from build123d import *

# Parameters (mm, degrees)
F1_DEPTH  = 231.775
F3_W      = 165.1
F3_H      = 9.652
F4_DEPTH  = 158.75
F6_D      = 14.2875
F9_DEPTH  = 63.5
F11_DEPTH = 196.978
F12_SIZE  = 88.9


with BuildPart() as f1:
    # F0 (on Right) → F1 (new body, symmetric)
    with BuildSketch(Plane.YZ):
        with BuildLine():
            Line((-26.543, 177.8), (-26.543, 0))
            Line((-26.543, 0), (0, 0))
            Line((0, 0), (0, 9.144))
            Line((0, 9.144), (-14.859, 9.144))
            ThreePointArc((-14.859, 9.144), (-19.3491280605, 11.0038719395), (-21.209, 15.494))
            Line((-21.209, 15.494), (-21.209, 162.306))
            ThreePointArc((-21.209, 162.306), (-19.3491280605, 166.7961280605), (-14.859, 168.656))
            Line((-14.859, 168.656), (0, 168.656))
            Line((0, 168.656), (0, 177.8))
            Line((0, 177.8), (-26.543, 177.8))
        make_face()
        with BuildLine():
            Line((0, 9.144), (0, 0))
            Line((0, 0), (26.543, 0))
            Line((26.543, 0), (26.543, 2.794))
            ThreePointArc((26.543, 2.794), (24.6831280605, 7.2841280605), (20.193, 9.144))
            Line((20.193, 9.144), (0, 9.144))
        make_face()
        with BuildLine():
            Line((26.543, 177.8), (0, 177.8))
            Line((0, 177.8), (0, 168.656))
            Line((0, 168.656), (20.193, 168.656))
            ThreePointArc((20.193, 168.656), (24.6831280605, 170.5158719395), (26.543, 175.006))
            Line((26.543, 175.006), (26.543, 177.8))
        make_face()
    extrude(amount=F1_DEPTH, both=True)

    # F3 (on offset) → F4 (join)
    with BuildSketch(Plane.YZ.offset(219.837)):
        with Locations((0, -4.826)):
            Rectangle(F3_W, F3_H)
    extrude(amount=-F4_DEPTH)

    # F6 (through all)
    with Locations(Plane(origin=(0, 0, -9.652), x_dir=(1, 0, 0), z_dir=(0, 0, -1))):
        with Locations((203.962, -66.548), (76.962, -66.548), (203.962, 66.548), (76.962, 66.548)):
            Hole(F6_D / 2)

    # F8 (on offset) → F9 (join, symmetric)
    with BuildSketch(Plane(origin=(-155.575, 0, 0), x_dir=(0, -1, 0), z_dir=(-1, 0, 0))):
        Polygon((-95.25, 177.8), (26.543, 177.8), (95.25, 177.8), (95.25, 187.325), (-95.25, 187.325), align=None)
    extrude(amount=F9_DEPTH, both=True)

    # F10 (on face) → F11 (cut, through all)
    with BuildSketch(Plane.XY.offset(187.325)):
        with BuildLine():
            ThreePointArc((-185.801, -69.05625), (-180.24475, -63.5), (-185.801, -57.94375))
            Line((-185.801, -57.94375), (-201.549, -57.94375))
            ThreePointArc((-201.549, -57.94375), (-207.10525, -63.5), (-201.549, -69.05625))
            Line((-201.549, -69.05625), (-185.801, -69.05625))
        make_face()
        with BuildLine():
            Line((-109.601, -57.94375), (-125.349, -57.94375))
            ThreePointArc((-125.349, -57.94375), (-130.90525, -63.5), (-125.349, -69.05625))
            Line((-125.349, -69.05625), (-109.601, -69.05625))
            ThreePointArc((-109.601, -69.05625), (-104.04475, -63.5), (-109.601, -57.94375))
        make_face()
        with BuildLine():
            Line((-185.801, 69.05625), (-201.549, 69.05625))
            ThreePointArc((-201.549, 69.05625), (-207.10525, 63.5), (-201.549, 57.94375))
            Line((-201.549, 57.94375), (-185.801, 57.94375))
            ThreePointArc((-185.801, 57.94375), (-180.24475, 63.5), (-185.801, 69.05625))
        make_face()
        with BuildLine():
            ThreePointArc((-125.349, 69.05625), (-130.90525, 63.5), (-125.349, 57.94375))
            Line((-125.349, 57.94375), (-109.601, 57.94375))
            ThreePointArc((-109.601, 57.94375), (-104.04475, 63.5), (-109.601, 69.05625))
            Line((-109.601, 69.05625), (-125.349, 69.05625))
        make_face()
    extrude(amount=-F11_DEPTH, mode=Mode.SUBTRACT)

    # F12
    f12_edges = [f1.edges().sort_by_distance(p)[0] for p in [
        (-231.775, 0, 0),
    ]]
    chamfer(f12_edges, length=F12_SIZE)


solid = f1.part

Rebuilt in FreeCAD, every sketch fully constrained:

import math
import FreeCAD as App
import Part
import Sketcher

V = App.Vector
Q = App.Units.Quantity


def edges_at(feature, points):
    """Names of the edges that pass closest to the given points."""
    edges = feature.Shape.Edges
    near = lambda p: min(range(len(edges)), key=lambda i: edges[i].distToShape(Part.Vertex(*p))[0])
    return sorted({f"Edge{near(p) + 1}" for p in points})


def add_polygon(sketch, points):
    """Adds a closed chain of lines whose ends are joined by coincident constraints."""
    first, n = sketch.GeometryCount, len(points)
    for a, b in zip(points, points[1:] + points[:1]):
        sketch.addGeometry(Part.LineSegment(App.Vector(*a, 0), App.Vector(*b, 0)), False)
    for i in range(n):
        sketch.addConstraint(Sketcher.Constraint("Coincident", first + i, 2, first + (i + 1) % n, 1))

doc = App.newDocument("Part")
body = doc.addObject("PartDesign::Body", "Body")

# Sketch on YZ plane
sketch1 = body.newObject("Sketcher::SketchObject", "Sketch")
sketch1.AttachmentSupport = (doc.getObject("YZ_Plane"), [""])
sketch1.MapMode = "FlatFace"
sketch1.addGeometry([
    Part.LineSegment(V(-26.5, 177.8, 0), V(-26.5, 0, 0)),  # 0
    Part.LineSegment(V(-26.5, 0, 0), V(26.5, 0, 0)),  # 1
    Part.LineSegment(V(26.5, 0, 0), V(26.5, 2.8, 0)),  # 2
    Part.ArcOfCircle(Part.Circle(V(20.2, 2.8, 0), V(0, 0, 1), 6.3), math.radians(0), math.radians(90)),  # 3
    Part.LineSegment(V(20.2, 9.1, 0), V(-14.9, 9.1, 0)),  # 4
    Part.ArcOfCircle(Part.Circle(V(-14.9, 15.5, 0), V(0, 0, 1), 6.3), math.radians(180), math.radians(270)),  # 5
    Part.LineSegment(V(-21.2, 15.5, 0), V(-21.2, 162.3, 0)),  # 6
    Part.ArcOfCircle(Part.Circle(V(-14.9, 162.3, 0), V(0, 0, 1), 6.3), math.radians(90), math.radians(180)),  # 7
    Part.LineSegment(V(-14.9, 168.7, 0), V(20.2, 168.7, 0)),  # 8
    Part.ArcOfCircle(Part.Circle(V(20.2, 175, 0), V(0, 0, 1), 6.3), math.radians(-90), math.radians(0)),  # 9
    Part.LineSegment(V(26.5, 175, 0), V(26.5, 177.8, 0)),  # 10
    Part.LineSegment(V(26.5, 177.8, 0), V(-26.5, 177.8, 0)),  # 11
], False)
sketch1.addConstraint([
    Sketcher.Constraint("Coincident", 0, 2, 1, 1),
    Sketcher.Constraint("Coincident", 1, 2, 2, 1),
    Sketcher.Constraint("Tangent", 2, 2, 3, 1),
    Sketcher.Constraint("Tangent", 3, 2, 4, 1),
    Sketcher.Constraint("Tangent", 4, 2, 5, 2),
    Sketcher.Constraint("Tangent", 5, 1, 6, 1),
    Sketcher.Constraint("Tangent", 6, 2, 7, 2),
    Sketcher.Constraint("Tangent", 7, 1, 8, 1),
    Sketcher.Constraint("Tangent", 8, 2, 9, 1),
    Sketcher.Constraint("Tangent", 9, 2, 10, 1),
    Sketcher.Constraint("Coincident", 10, 2, 11, 1),
    Sketcher.Constraint("Coincident", 11, 2, 0, 1),
    Sketcher.Constraint("Vertical", 0),
    Sketcher.Constraint("Horizontal", 1),
    Sketcher.Constraint("Vertical", 2),
    Sketcher.Constraint("Horizontal", 4),
    Sketcher.Constraint("Vertical", 6),
    Sketcher.Constraint("Horizontal", 8),
    Sketcher.Constraint("Vertical", 10),
    Sketcher.Constraint("Horizontal", 11),
    Sketcher.Constraint("Equal", 3, 5),
    Sketcher.Constraint("Equal", 5, 7),
    Sketcher.Constraint("Equal", 7, 9),
    Sketcher.Constraint("Symmetric", 0, 2, 1, 2, -1, 1),
    Sketcher.Constraint("Vertical", 3, 3, 9, 3),
    Sketcher.Constraint("Equal", 2, 10),
    Sketcher.Constraint("DistanceY", 0, 2, 0, 1, Q("7 in")),
    Sketcher.Constraint("Radius", 3, Q("0.25 in")),
    Sketcher.Constraint("DistanceX", 1, 1, 1, 2, Q("2.09 in")),
    Sketcher.Constraint("DistanceX", 4, 2, 4, 1, Q("1.38 in")),
    Sketcher.Constraint("DistanceY", 2, 1, 2, 2, Q("0.11 in")),
])
pad1 = body.newObject("PartDesign::Pad", "Pad")
pad1.Profile = sketch1
pad1.Length = Q("18.25 in")
pad1.Midplane = True

# Sketch on YZ plane
sketch2 = body.newObject("Sketcher::SketchObject", "Sketch001")
sketch2.AttachmentSupport = (doc.getObject("YZ_Plane"), [""])
sketch2.MapMode = "FlatFace"
sketch2.AttachmentOffset = App.Placement(V(0, 0, 8.655 * 25.4), App.Rotation())
add_polygon(sketch2, [(-83, 0), (-83, -10), (83, -10), (83, 0)])  # lines 0-3
sketch2.addConstraint([
    Sketcher.Constraint("Vertical", 0),
    Sketcher.Constraint("Horizontal", 1),
    Sketcher.Constraint("Vertical", 2),
    Sketcher.Constraint("Horizontal", 3),
    Sketcher.Constraint("Symmetric", 2, 2, 3, 2, -1, 1),
    Sketcher.Constraint("DistanceX", 1, 1, 1, 2, Q("6.5 in")),
    Sketcher.Constraint("DistanceY", 0, 2, 0, 1, Q("0.38 in")),
])
pad2 = body.newObject("PartDesign::Pad", "Pad001")
pad2.Profile = sketch2
pad2.Length = Q("6.25 in")
pad2.Reversed = True

# Sketch on XY plane
sketch3 = body.newObject("Sketcher::SketchObject", "Sketch002")
sketch3.AttachmentSupport = (doc.getObject("XY_Plane"), [""])
sketch3.MapMode = "FlatFace"
sketch3.AttachmentOffset = App.Placement(V(0, 0, -0.38 * 25.4), App.Rotation())
sketch3.addGeometry([
    Part.Circle(V(204, 67, 0), V(0, 0, 1), 7),
    Part.Circle(V(77, 67, 0), V(0, 0, 1), 7),
    Part.Circle(V(204, -67, 0), V(0, 0, 1), 7),
    Part.Circle(V(77, -67, 0), V(0, 0, 1), 7),
], False)
sketch3.addConstraint([
    Sketcher.Constraint("Equal", 0, 1),
    Sketcher.Constraint("Equal", 1, 2),
    Sketcher.Constraint("Equal", 2, 3),
    Sketcher.Constraint("Symmetric", 0, 3, 2, 3, -1),
    Sketcher.Constraint("Symmetric", 1, 3, 3, 3, -1),
    Sketcher.Constraint("Horizontal", 0, 3, 1, 3),
    Sketcher.Constraint("Diameter", 0, Q("0.5625 in")),
    Sketcher.Constraint("DistanceX", 1, 3, 0, 3, Q("5 in")),
    Sketcher.Constraint("DistanceX", -1, 1, 0, 3, Q("8.03 in")),
    Sketcher.Constraint("DistanceY", -1, 1, 0, 3, Q("2.62 in")),
])
doc.recompute()
hole = body.newObject("PartDesign::Hole", "Hole")
hole.Profile = sketch3
hole.ThreadType = "None"
hole.Diameter = Q("0.5625 in")
hole.DepthType = "ThroughAll"
hole.Reversed = True

# Sketch on YZ plane
sketch4 = body.newObject("Sketcher::SketchObject", "Sketch003")
sketch4.AttachmentSupport = (doc.getObject("YZ_Plane"), [""])
sketch4.MapMode = "FlatFace"
sketch4.AttachmentOffset = App.Placement(V(0, 0, -6.125 * 25.4), App.Rotation())
add_polygon(sketch4, [(95, 178), (-95, 178), (-95, 187), (95, 187)])  # lines 0-3
sketch4.addConstraint([
    Sketcher.Constraint("Horizontal", 0),
    Sketcher.Constraint("Vertical", 1),
    Sketcher.Constraint("Horizontal", 2),
    Sketcher.Constraint("Vertical", 3),
    Sketcher.Constraint("DistanceX", 0, 2, 0, 1, Q("7.5 in")),
    Sketcher.Constraint("DistanceY", -1, 1, 0, 2, Q("7 in")),
    Sketcher.Constraint("DistanceY", 1, 1, 1, 2, Q("0.375 in")),
    Sketcher.Constraint("DistanceX", 0, 2, -1, 1, Q("3.75 in")),
])
pad3 = body.newObject("PartDesign::Pad", "Pad002")
pad3.Profile = sketch4
pad3.Length = Q("5 in")
pad3.Midplane = True

# Sketch on XY plane
sketch5 = body.newObject("Sketcher::SketchObject", "Sketch004")
sketch5.AttachmentSupport = (doc.getObject("XY_Plane"), [""])
sketch5.MapMode = "FlatFace"
sketch5.AttachmentOffset = App.Placement(V(0, 0, 7.375 * 25.4), App.Rotation())
sketch5.addGeometry([
    Part.ArcOfCircle(Part.Circle(V(-186, -64, 0), V(0, 0, 1), 6), math.radians(-90), math.radians(90)),  # 0
    Part.LineSegment(V(-186, -58, 0), V(-202, -58, 0)),  # 1
    Part.ArcOfCircle(Part.Circle(V(-202, -64, 0), V(0, 0, 1), 6), math.radians(90), math.radians(270)),  # 2
    Part.LineSegment(V(-202, -69, 0), V(-186, -69, 0)),  # 3
    Part.LineSegment(V(-110, -58, 0), V(-125, -58, 0)),  # 4
    Part.ArcOfCircle(Part.Circle(V(-125, -64, 0), V(0, 0, 1), 6), math.radians(90), math.radians(270)),  # 5
    Part.LineSegment(V(-125, -69, 0), V(-110, -69, 0)),  # 6
    Part.ArcOfCircle(Part.Circle(V(-110, -64, 0), V(0, 0, 1), 6), math.radians(-90), math.radians(90)),  # 7
    Part.LineSegment(V(-186, 69, 0), V(-202, 69, 0)),  # 8
    Part.ArcOfCircle(Part.Circle(V(-202, 64, 0), V(0, 0, 1), 6), math.radians(90), math.radians(270)),  # 9
    Part.LineSegment(V(-202, 58, 0), V(-186, 58, 0)),  # 10
    Part.ArcOfCircle(Part.Circle(V(-186, 64, 0), V(0, 0, 1), 6), math.radians(-90), math.radians(90)),  # 11
    Part.ArcOfCircle(Part.Circle(V(-125, 64, 0), V(0, 0, 1), 6), math.radians(90), math.radians(270)),  # 12
    Part.LineSegment(V(-125, 58, 0), V(-110, 58, 0)),  # 13
    Part.ArcOfCircle(Part.Circle(V(-110, 64, 0), V(0, 0, 1), 6), math.radians(-90), math.radians(90)),  # 14
    Part.LineSegment(V(-110, 69, 0), V(-125, 69, 0)),  # 15
], False)
sketch5.addConstraint([
    Sketcher.Constraint("Tangent", 0, 2, 1, 1),
    Sketcher.Constraint("Tangent", 1, 2, 2, 1),
    Sketcher.Constraint("Tangent", 2, 2, 3, 1),
    Sketcher.Constraint("Tangent", 3, 2, 0, 1),
    Sketcher.Constraint("Tangent", 4, 2, 5, 1),
    Sketcher.Constraint("Tangent", 5, 2, 6, 1),
    Sketcher.Constraint("Tangent", 6, 2, 7, 1),
    Sketcher.Constraint("Tangent", 7, 2, 4, 1),
    Sketcher.Constraint("Tangent", 8, 2, 9, 1),
    Sketcher.Constraint("Tangent", 9, 2, 10, 1),
    Sketcher.Constraint("Tangent", 10, 2, 11, 1),
    Sketcher.Constraint("Tangent", 11, 2, 8, 1),
    Sketcher.Constraint("Tangent", 12, 2, 13, 1),
    Sketcher.Constraint("Tangent", 13, 2, 14, 1),
    Sketcher.Constraint("Tangent", 14, 2, 15, 1),
    Sketcher.Constraint("Tangent", 15, 2, 12, 1),
    Sketcher.Constraint("Horizontal", 1),
    Sketcher.Constraint("Horizontal", 3),
    Sketcher.Constraint("Horizontal", 4),
    Sketcher.Constraint("Horizontal", 6),
    Sketcher.Constraint("Horizontal", 8),
    Sketcher.Constraint("Horizontal", 10),
    Sketcher.Constraint("Horizontal", 13),
    Sketcher.Constraint("Horizontal", 15),
    Sketcher.Constraint("Equal", 2, 5),
    Sketcher.Constraint("Equal", 7, 9),
    Sketcher.Constraint("Equal", 11, 12),
    Sketcher.Constraint("Symmetric", 2, 3, 9, 3, -1),
    Sketcher.Constraint("Symmetric", 5, 3, 12, 3, -1),
    Sketcher.Constraint("Horizontal", 2, 3, 5, 3),
    Sketcher.Constraint("Vertical", 0, 3, 11, 3),
    Sketcher.Constraint("Vertical", 7, 3, 14, 3),
    Sketcher.Constraint("Equal", 3, 4),
    Sketcher.Constraint("Radius", 0, Q("0.21875 in")),
    Sketcher.Constraint("DistanceX", 2, 3, 5, 3, Q("3 in")),
    Sketcher.Constraint("DistanceY", 2, 3, 9, 3, Q("5 in")),
    Sketcher.Constraint("DistanceX", 1, 2, 1, 1, Q("0.62 in")),
    Sketcher.Constraint("DistanceX", 0, 3, -1, 1, Q("7.315 in")),
])
pocket1 = body.newObject("PartDesign::Pocket", "Pocket")
pocket1.Profile = sketch5
pocket1.Type = "ThroughAll"
doc.recompute()

chamfer = body.newObject("PartDesign::Chamfer", "Chamfer")
chamfer.Base = (pocket1, edges_at(pocket1, [(-231.775, 0, 0)]))
chamfer.Size = Q("3.5 in")

doc.recompute()
